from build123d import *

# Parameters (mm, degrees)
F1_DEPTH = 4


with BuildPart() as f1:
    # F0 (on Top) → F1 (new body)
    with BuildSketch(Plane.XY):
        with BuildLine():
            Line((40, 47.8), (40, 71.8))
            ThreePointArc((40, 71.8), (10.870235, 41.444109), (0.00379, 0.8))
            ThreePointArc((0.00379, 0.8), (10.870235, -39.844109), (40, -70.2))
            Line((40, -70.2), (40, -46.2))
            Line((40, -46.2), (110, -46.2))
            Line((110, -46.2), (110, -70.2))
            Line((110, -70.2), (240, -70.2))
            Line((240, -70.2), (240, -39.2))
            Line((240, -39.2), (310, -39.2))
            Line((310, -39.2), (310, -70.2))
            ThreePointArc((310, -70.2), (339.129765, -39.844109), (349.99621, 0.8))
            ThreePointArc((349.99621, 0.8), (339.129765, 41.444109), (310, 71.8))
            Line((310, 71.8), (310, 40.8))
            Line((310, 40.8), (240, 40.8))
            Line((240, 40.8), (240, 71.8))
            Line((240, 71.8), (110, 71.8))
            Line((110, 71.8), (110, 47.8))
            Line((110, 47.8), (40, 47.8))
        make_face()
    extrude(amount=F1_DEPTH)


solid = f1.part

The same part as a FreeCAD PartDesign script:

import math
import FreeCAD as App
import Part
import Sketcher
from FreeCAD import Vector

doc = App.newDocument("Part")
body = doc.addObject("PartDesign::Body", "Body")

# Sketch on XY plane
sketch1 = body.newObject("Sketcher::SketchObject", "Sketch")
sketch1.AttachmentSupport = (doc.getObject("XY_Plane"), [""])
sketch1.MapMode = "FlatFace"
sketch1.addGeometry(Part.LineSegment(Vector(40, 48, 0), Vector(40, 72, 0)), False)
sketch1.addGeometry(Part.ArcOfCircle(Part.Circle(Vector(84, 0, 0), Vector(0, 0, 1), 84), math.radians(122), math.radians(179)), False)
sketch1.addGeometry(Part.ArcOfCircle(Part.Circle(Vector(84, 2, 0), Vector(0, 0, 1), 84), math.radians(-179), math.radians(-122)), False)
sketch1.addGeometry(Part.LineSegment(Vector(40, -70, 0), Vector(40, -46, 0)), False)
sketch1.addGeometry(Part.LineSegment(Vector(40, -46, 0), Vector(110, -46, 0)), False)
sketch1.addGeometry(Part.LineSegment(Vector(110, -46, 0), Vector(110, -70, 0)), False)
sketch1.addGeometry(Part.LineSegment(Vector(110, -70, 0), Vector(240, -70, 0)), False)
sketch1.addGeometry(Part.LineSegment(Vector(240, -70, 0), Vector(240, -39, 0)), False)
sketch1.addGeometry(Part.LineSegment(Vector(240, -39, 0), Vector(310, -39, 0)), False)
sketch1.addGeometry(Part.LineSegment(Vector(310, -39, 0), Vector(310, -70, 0)), False)
sketch1.addGeometry(Part.ArcOfCircle(Part.Circle(Vector(266, 2, 0), Vector(0, 0, 1), 84), math.radians(-58), math.radians(-1)), False)
sketch1.addGeometry(Part.ArcOfCircle(Part.Circle(Vector(266, 0, 0), Vector(0, 0, 1), 84), math.radians(1), math.radians(58)), False)
sketch1.addGeometry(Part.LineSegment(Vector(310, 72, 0), Vector(310, 41, 0)), False)
sketch1.addGeometry(Part.LineSegment(Vector(310, 41, 0), Vector(240, 41, 0)), False)
sketch1.addGeometry(Part.LineSegment(Vector(240, 41, 0), Vector(240, 72, 0)), False)
sketch1.addGeometry(Part.LineSegment(Vector(240, 72, 0), Vector(110, 72, 0)), False)
sketch1.addGeometry(Part.LineSegment(Vector(110, 72, 0), Vector(110, 48, 0)), False)
sketch1.addGeometry(Part.LineSegment(Vector(110, 48, 0), Vector(40, 48, 0)), False)
sketch1.addConstraint(Sketcher.Constraint("Coincident", 0, 2, 1, 1))
sketch1.addConstraint(Sketcher.Constraint("Coincident", 1, 2, 2, 1))
sketch1.addConstraint(Sketcher.Constraint("Coincident", 2, 2, 3, 1))
sketch1.addConstraint(Sketcher.Constraint("Coincident", 3, 2, 4, 1))
sketch1.addConstraint(Sketcher.Constraint("Coincident", 4, 2, 5, 1))
sketch1.addConstraint(Sketcher.Constraint("Coincident", 5, 2, 6, 1))
sketch1.addConstraint(Sketcher.Constraint("Coincident", 6, 2, 7, 1))
sketch1.addConstraint(Sketcher.Constraint("Coincident", 7, 2, 8, 1))
sketch1.addConstraint(Sketcher.Constraint("Coincident", 8, 2, 9, 1))
sketch1.addConstraint(Sketcher.Constraint("Coincident", 9, 2, 10, 1))
sketch1.addConstraint(Sketcher.Constraint("Coincident", 10, 2, 11, 1))
sketch1.addConstraint(Sketcher.Constraint("Coincident", 11, 2, 12, 1))
sketch1.addConstraint(Sketcher.Constraint("Coincident", 12, 2, 13, 1))
sketch1.addConstraint(Sketcher.Constraint("Coincident", 13, 2, 14, 1))
sketch1.addConstraint(Sketcher.Constraint("Coincident", 14, 2, 15, 1))
sketch1.addConstraint(Sketcher.Constraint("Coincident", 15, 2, 16, 1))
sketch1.addConstraint(Sketcher.Constraint("Coincident", 16, 2, 17, 1))
sketch1.addConstraint(Sketcher.Constraint("Coincident", 17, 2, 0, 1))
sketch1.addConstraint(Sketcher.Constraint("Vertical", 0))
sketch1.addConstraint(Sketcher.Constraint("Vertical", 3))
sketch1.addConstraint(Sketcher.Constraint("Horizontal", 4))
sketch1.addConstraint(Sketcher.Constraint("Vertical", 5))
sketch1.addConstraint(Sketcher.Constraint("Horizontal", 6))
sketch1.addConstraint(Sketcher.Constraint("Vertical", 7))
sketch1.addConstraint(Sketcher.Constraint("Horizontal", 8))
sketch1.addConstraint(Sketcher.Constraint("Vertical", 9))
sketch1.addConstraint(Sketcher.Constraint("Vertical", 12))
sketch1.addConstraint(Sketcher.Constraint("Horizontal", 13))
sketch1.addConstraint(Sketcher.Constraint("Vertical", 14))
sketch1.addConstraint(Sketcher.Constraint("Horizontal", 15))
sketch1.addConstraint(Sketcher.Constraint("Vertical", 16))
sketch1.addConstraint(Sketcher.Constraint("Horizontal", 17))
sketch1.addConstraint(Sketcher.Constraint("Equal", 1, 2))
sketch1.addConstraint(Sketcher.Constraint("Equal", 2, 10))
sketch1.addConstraint(Sketcher.Constraint("Equal", 10, 11))
sketch1.addConstraint(Sketcher.Constraint("PointOnObject", 1, 3, -1))
sketch1.addConstraint(Sketcher.Constraint("PointOnObject", 11, 3, -1))
sketch1.addConstraint(Sketcher.Constraint("Horizontal", 2, 3, 10, 3))
sketch1.addConstraint(Sketcher.Constraint("Horizontal", 2, 2, 5, 2))
sketch1.addConstraint(Sketcher.Constraint("Horizontal", 6, 2, 9, 2))
sketch1.addConstraint(Sketcher.Constraint("Horizontal", 1, 2, 10, 2))
sketch1.addConstraint(Sketcher.Constraint("Horizontal", 0, 2, 11, 2))
sketch1.addConstraint(Sketcher.Constraint("Horizontal", 11, 2, 14, 2))
sketch1.addConstraint(Sketcher.Constraint("Vertical", 1, 3, 2, 3))
sketch1.addConstraint(Sketcher.Constraint("Vertical", 0, 2, 2, 2))
sketch1.addConstraint(Sketcher.Constraint("Vertical", 7, 2, 13, 2))
sketch1.addConstraint(Sketcher.Constraint("Vertical", 5, 2, 15, 2))
sketch1.addConstraint(Sketcher.Constraint("Equal", 4, 8))
sketch1.addConstraint(Sketcher.Constraint("Equal", 0, 3))
sketch1.addConstraint(Sketcher.Constraint("Equal", 9, 12))
sketch1.addConstraint(Sketcher.Constraint("DistanceX", 4, 1, 4, 2, 70.0))
sketch1.addConstraint(Sketcher.Constraint("DistanceX", 6, 1, 6, 2, 130.0))
sketch1.addConstraint(Sketcher.Constraint("DistanceY", 0, 1, 0, 2, 24.0))
sketch1.addConstraint(Sketcher.Constraint("DistanceY", 7, 1, 7, 2, 31.0))
sketch1.addConstraint(Sketcher.Constraint("DistanceX", -1, 1, 0, 2, 40.0))
sketch1.addConstraint(Sketcher.Constraint("DistanceY", 1, 2, 0, 2, 71.0))
sketch1.addConstraint(Sketcher.Constraint("DistanceY", -1, 1, 2, 3, 1.599999))
sketch1.addConstraint(Sketcher.Constraint("Radius", 1, 84.440498))
pad1 = body.newObject("PartDesign::Pad", "Pad")
pad1.Profile = sketch1
pad1.Length = 4

doc.recompute()
